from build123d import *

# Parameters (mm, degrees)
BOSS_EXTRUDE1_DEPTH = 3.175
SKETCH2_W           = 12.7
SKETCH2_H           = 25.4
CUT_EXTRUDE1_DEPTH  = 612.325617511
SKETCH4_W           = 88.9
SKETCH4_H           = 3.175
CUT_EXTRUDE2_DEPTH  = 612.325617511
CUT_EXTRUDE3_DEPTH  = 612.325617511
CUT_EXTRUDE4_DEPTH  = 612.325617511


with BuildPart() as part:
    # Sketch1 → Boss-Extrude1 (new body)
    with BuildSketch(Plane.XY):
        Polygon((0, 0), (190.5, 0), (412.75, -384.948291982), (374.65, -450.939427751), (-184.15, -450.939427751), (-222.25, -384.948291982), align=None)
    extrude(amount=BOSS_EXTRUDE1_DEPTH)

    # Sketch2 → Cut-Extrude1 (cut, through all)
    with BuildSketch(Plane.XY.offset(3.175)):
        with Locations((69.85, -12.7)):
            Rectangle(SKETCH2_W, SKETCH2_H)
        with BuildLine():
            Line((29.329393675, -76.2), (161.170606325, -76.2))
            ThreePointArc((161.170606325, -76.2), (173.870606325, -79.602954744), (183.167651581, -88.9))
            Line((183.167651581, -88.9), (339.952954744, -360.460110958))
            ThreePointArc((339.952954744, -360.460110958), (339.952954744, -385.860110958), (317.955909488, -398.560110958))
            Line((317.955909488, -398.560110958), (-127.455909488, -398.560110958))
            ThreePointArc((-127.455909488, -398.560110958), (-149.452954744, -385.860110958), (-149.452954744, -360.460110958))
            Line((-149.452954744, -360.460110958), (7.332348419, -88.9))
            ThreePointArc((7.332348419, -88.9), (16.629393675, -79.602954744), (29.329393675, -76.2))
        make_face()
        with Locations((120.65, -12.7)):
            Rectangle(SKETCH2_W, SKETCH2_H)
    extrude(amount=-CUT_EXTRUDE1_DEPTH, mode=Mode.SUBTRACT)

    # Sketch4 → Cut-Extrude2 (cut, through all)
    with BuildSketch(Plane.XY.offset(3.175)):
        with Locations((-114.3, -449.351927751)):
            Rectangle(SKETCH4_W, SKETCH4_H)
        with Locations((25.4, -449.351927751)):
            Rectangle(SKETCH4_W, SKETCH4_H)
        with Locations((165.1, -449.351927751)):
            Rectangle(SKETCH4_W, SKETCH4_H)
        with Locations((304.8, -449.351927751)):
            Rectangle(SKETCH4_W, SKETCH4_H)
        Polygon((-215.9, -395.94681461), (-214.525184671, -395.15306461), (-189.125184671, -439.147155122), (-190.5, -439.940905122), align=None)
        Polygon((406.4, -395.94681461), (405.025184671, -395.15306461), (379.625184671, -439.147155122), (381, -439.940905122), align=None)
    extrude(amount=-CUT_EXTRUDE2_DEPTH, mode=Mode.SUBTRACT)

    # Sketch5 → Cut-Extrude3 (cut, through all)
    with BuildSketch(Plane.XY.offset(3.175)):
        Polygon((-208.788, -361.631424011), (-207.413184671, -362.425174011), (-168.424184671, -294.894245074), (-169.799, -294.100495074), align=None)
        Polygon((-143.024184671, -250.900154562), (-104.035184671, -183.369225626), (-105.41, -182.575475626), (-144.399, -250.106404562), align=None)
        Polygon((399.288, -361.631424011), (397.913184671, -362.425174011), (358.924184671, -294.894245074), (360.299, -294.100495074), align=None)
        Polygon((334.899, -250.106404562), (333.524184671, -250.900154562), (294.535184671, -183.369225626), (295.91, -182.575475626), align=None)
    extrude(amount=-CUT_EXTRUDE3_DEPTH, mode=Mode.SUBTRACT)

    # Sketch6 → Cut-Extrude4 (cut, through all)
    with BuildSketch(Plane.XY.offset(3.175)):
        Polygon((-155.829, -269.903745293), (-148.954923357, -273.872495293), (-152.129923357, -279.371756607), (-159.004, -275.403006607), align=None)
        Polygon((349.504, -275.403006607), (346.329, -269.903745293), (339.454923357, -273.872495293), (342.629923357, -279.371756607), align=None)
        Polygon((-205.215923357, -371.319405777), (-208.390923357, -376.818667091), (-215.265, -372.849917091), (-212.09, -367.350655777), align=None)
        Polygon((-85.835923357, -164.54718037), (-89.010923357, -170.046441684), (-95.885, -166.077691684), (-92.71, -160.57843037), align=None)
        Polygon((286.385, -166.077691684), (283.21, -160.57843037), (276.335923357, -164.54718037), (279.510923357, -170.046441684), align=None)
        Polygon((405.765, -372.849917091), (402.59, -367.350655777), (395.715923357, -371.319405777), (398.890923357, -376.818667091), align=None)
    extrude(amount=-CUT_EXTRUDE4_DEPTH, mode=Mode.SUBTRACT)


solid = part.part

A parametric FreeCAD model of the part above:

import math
import FreeCAD as App
import Part
import Sketcher
from FreeCAD import Vector
Q = App.Units.Quantity


def add_polygon(sketch, points):
    """Adds a closed chain of lines whose ends are joined by coincident constraints."""
    first, n = sketch.GeometryCount, len(points)
    for a, b in zip(points, points[1:] + points[:1]):
        sketch.addGeometry(Part.LineSegment(App.Vector(*a, 0), App.Vector(*b, 0)), False)
    for i in range(n):
        sketch.addConstraint(Sketcher.Constraint("Coincident", first + i, 2, first + (i + 1) % n, 1))

doc = App.newDocument("Part")
params = doc.addObject("Spreadsheet::Sheet", "Params")
for row, (alias, value) in enumerate([
    ("sketch1_width", "22 in"),
    ("sketch1_length", "3 in"),
    ("sketch1_width2", "7.5 in"),
    ("pad1_length", "0.125 in"),
    ("sketch2_radius", "1 in"),
    ("sketch2_height", "1 in"),
    ("sketch2_width", "0.5 in"),
    ("sketch3_length", "2 in"),
    ("sketch3_width", "3.5 in"),
    ("sketch3_height", "0.125 in"),
    ("sketch3_length2", "0.0625 in"),
    ("sketch4_length", "3.07 in"),
    ("sketch4_length2", "0.0625 in"),
    ("sketch5_length", "0.25 in"),
    ("sketch5_length2", "0.3125 in"),
], start=1):
    params.set(f"A{row}", alias)
    params.set(f"B{row}", "=" + value)
    params.setAlias(f"B{row}", alias)

body = doc.addObject("PartDesign::Body", "Body")

# Sketch on XY plane
sketch1 = body.newObject("Sketcher::SketchObject", "Sketch")
sketch1.AttachmentSupport = (doc.getObject("XY_Plane"), [""])
sketch1.MapMode = "FlatFace"
add_polygon(sketch1, [(190.5, 0), (0, 0), (-222.25, -384.948292), (-184.15, -450.939428), (374.65, -450.939428), (412.75, -384.948292)])  # lines 0-5
sketch1.addConstraint([
    Sketcher.Constraint("Horizontal", 0),
    Sketcher.Constraint("Horizontal", 3),
    Sketcher.Constraint("Coincident", 0, 2, -1, 1),
    Sketcher.Constraint("Parallel", 1, 4),
    Sketcher.Constraint("Parallel", 2, 5),
    Sketcher.Constraint("Horizontal", 1, 2, 4, 2),
    Sketcher.Constraint("Equal", 2, 4),
    Sketcher.Constraint("DistanceX", 3, 1, 3, 2, Q("22 in")),
    Sketcher.Constraint("Distance", 2, Q("3 in")),
    Sketcher.Constraint("DistanceX", 0, 2, 0, 1, Q("7.5 in")),
    Sketcher.Constraint("Angle", 1, Q("-120 deg")),
])
sketch1.setExpression("Constraints[13]", "Params.sketch1_width")
sketch1.setExpression("Constraints[14]", "Params.sketch1_length")
sketch1.setExpression("Constraints[15]", "Params.sketch1_width2")
pad1 = body.newObject("PartDesign::Pad", "Pad")
pad1.Profile = sketch1
pad1.setExpression("Length", "Params.pad1_length")

# Sketch on XY plane
sketch2 = body.newObject("Sketcher::SketchObject", "Sketch001")
sketch2.AttachmentSupport = (doc.getObject("XY_Plane"), [""])
sketch2.MapMode = "FlatFace"
sketch2.AttachmentOffset = App.Placement(Vector(0, 0, 0.125 * 25.4), App.Rotation())
add_polygon(sketch2, [(63.5, 0), (63.5, -25.4), (76.2, -25.4), (76.2, 0)])  # lines 0-3
sketch2.addGeometry(Part.LineSegment(Vector(161.170606, -76.2, 0), Vector(29.329394, -76.2, 0)), False)  # 4
sketch2.addGeometry(Part.ArcOfCircle(Part.Circle(Vector(29.329394, -101.6, 0), Vector(0, 0, 1), 25.4), math.radians(90), math.radians(150)), False)  # 5
sketch2.addGeometry(Part.LineSegment(Vector(7.332348, -88.9, 0), Vector(-149.452955, -360.460111, 0)), False)  # 6
sketch2.addGeometry(Part.ArcOfCircle(Part.Circle(Vector(-127.455909, -373.160111, 0), Vector(0, 0, 1), 25.4), math.radians(150), math.radians(270)), False)  # 7
sketch2.addGeometry(Part.LineSegment(Vector(-127.455909, -398.560111, 0), Vector(317.955909, -398.560111, 0)), False)  # 8
sketch2.addGeometry(Part.ArcOfCircle(Part.Circle(Vector(317.955909, -373.160111, 0), Vector(0, 0, 1), 25.4), math.radians(-90), math.radians(30)), False)  # 9
sketch2.addGeometry(Part.LineSegment(Vector(339.952955, -360.460111, 0), Vector(183.167652, -88.9, 0)), False)  # 10
sketch2.addGeometry(Part.ArcOfCircle(Part.Circle(Vector(161.170606, -101.6, 0), Vector(0, 0, 1), 25.4), math.radians(30), math.radians(90)), False)  # 11
add_polygon(sketch2, [(114.3, 0), (114.3, -25.4), (127, -25.4), (127, 0)])  # lines 12-15
sketch2.addConstraint([
    Sketcher.Constraint("Tangent", 4, 2, 5, 1),
    Sketcher.Constraint("Tangent", 5, 2, 6, 1),
    Sketcher.Constraint("Tangent", 6, 2, 7, 1),
    Sketcher.Constraint("Tangent", 7, 2, 8, 1),
    Sketcher.Constraint("Tangent", 8, 2, 9, 1),
    Sketcher.Constraint("Tangent", 9, 2, 10, 1),
    Sketcher.Constraint("Tangent", 10, 2, 11, 1),
    Sketcher.Constraint("Tangent", 11, 2, 4, 1),
    Sketcher.Constraint("Vertical", 0),
    Sketcher.Constraint("Horizontal", 1),
    Sketcher.Constraint("Vertical", 2),
    Sketcher.Constraint("Horizontal", 3),
    Sketcher.Constraint("Horizontal", 4),
    Sketcher.Constraint("Horizontal", 8),
    Sketcher.Constraint("Vertical", 12),
    Sketcher.Constraint("Horizontal", 13),
    Sketcher.Constraint("Vertical", 14),
    Sketcher.Constraint("Horizontal", 15),
    Sketcher.Constraint("Equal", 5, 7),
    Sketcher.Constraint("Equal", 7, 9),
    Sketcher.Constraint("Equal", 9, 11),
    Sketcher.Constraint("PointOnObject", 2, 2, -1),
    Sketcher.Constraint("PointOnObject", 14, 2, -1),
    Sketcher.Constraint("Horizontal", 6, 2, 9, 2),
    Sketcher.Constraint("Horizontal", 1, 2, 12, 2),
    Sketcher.Constraint("Equal", 3, 13),
    Sketcher.Constraint("Radius", 5, Q("1 in")),
    Sketcher.Constraint("DistanceY", 0, 2, 0, 1, Q("1 in")),
    Sketcher.Constraint("DistanceX", 1, 1, 1, 2, Q("0.5 in")),
    Sketcher.Constraint("DistanceY", 5, 3, -1, 1, Q("4 in")),
    Sketcher.Constraint("DistanceX", -1, 1, 1, 2, Q("3 in")),
    Sketcher.Constraint("DistanceX", -1, 1, 13, 2, Q("5 in")),
    Sketcher.Constraint("Angle", 6, Q("-120 deg")),
    Sketcher.Constraint("DistanceX", 8, 1, 8, 2, Q("445.411819 mm")),
    Sketcher.Constraint("DistanceX", 4, 2, 4, 1, Q("131.841213 mm")),
    Sketcher.Constraint("DistanceX", 7, 3, -1, 1, Q("127.455909 mm")),
])
sketch2.setExpression("Constraints[34]", "Params.sketch2_radius")
sketch2.setExpression("Constraints[35]", "Params.sketch2_height")
sketch2.setExpression("Constraints[36]", "Params.sketch2_width")
pocket1 = body.newObject("PartDesign::Pocket", "Pocket")
pocket1.Profile = sketch2
pocket1.Type = "ThroughAll"

# Sketch on XY plane
sketch3 = body.newObject("Sketcher::SketchObject", "Sketch002")
sketch3.AttachmentSupport = (doc.getObject("XY_Plane"), [""])
sketch3.MapMode = "FlatFace"
sketch3.AttachmentOffset = App.Placement(Vector(0, 0, 0.125 * 25.4), App.Rotation())
add_polygon(sketch3, [(-158.75, -447.764428), (-158.75, -450.939428), (-69.85, -450.939428), (-69.85, -447.764428)])  # lines 0-3
add_polygon(sketch3, [(-19.05, -447.764428), (-19.05, -450.939428), (69.85, -450.939428), (69.85, -447.764428)])  # lines 4-7
add_polygon(sketch3, [(120.65, -447.764428), (120.65, -450.939428), (209.55, -450.939428), (209.55, -447.764428)])  # lines 8-11
add_polygon(sketch3, [(260.35, -447.764428), (260.35, -450.939428), (349.25, -450.939428), (349.25, -447.764428)])  # lines 12-15
add_polygon(sketch3, [(-214.525185, -395.153065), (-215.9, -395.946815), (-190.5, -439.940905), (-189.125185, -439.147155)])  # lines 16-19
add_polygon(sketch3, [(406.4, -395.946815), (405.025185, -395.153065), (379.625185, -439.147155), (381, -439.940905)])  # lines 20-23
sketch3.addConstraint([
    Sketcher.Constraint("Vertical", 0),
    Sketcher.Constraint("Horizontal", 1),
    Sketcher.Constraint("Vertical", 2),
    Sketcher.Constraint("Horizontal", 3),
    Sketcher.Constraint("Vertical", 4),
    Sketcher.Constraint("Horizontal", 5),
    Sketcher.Constraint("Vertical", 6),
    Sketcher.Constraint("Horizontal", 7),
    Sketcher.Constraint("Vertical", 8),
    Sketcher.Constraint("Horizontal", 9),
    Sketcher.Constraint("Vertical", 10),
    Sketcher.Constraint("Horizontal", 11),
    Sketcher.Constraint("Vertical", 12),
    Sketcher.Constraint("Horizontal", 13),
    Sketcher.Constraint("Vertical", 14),
    Sketcher.Constraint("Horizontal", 15),
    Sketcher.Constraint("Symmetric", 1, 2, 5, 2, -2),
    Sketcher.Constraint("Perpendicular", 16, 17),
    Sketcher.Constraint("Perpendicular", 17, 18),
    Sketcher.Constraint("Perpendicular", 18, 19),
    Sketcher.Constraint("Perpendicular", 20, 21),
    Sketcher.Constraint("Perpendicular", 21, 22),
    Sketcher.Constraint("Perpendicular", 22, 23),
    Sketcher.Constraint("Horizontal", 3, 2, 6, 2),
    Sketcher.Constraint("Horizontal", 5, 2, 8, 2),
    Sketcher.Constraint("Horizontal", 7, 2, 10, 2),
    Sketcher.Constraint("Horizontal", 9, 2, 12, 2),
    Sketcher.Constraint("Horizontal", 11, 2, 14, 2),
    Sketcher.Constraint("Horizontal", 19, 2, 20, 2),
    Sketcher.Constraint("Horizontal", 18, 2, 21, 2),
    Sketcher.Constraint("Horizontal", 17, 2, 22, 2),
    Sketcher.Constraint("Equal", 3, 5),
    Sketcher.Constraint("Equal", 7, 9),
    Sketcher.Constraint("Equal", 11, 13),
    Sketcher.Constraint("Equal", 18, 20),
    Sketcher.Constraint("Distance", 17, Q("2 in")),
    Sketcher.Constraint("DistanceX", 1, 1, 1, 2, Q("3.5 in")),
    Sketcher.Constraint("DistanceX", -1, 1, 22, 2, Q("15 in")),
    Sketcher.Constraint("DistanceX", -1, 1, 23, 2, Q("16 in")),
    Sketcher.Constraint("DistanceX", 1, 2, 4, 2, Q("2 in")),
    Sketcher.Constraint("DistanceX", 5, 2, 8, 2, Q("2 in")),
    Sketcher.Constraint("DistanceX", 9, 2, 12, 2, Q("2 in")),
    Sketcher.Constraint("DistanceX", 16, 2, -1, 1, Q("8.5 in")),
    Sketcher.Constraint("DistanceY", 0, 2, 0, 1, Q("0.125 in")),
    Sketcher.Constraint("Distance", 16, Q("0.0625 in")),
    Sketcher.Constraint("DistanceY", 0, 2, -1, 1, Q("450.939428 mm")),
    Sketcher.Constraint("DistanceY", 16, 2, -1, 1, Q("395.946815 mm")),
])
sketch3.setExpression("Constraints[59]", "Params.sketch3_length")
sketch3.setExpression("Constraints[60]", "Params.sketch3_width")
sketch3.setExpression("Constraints[67]", "Params.sketch3_height")
sketch3.setExpression("Constraints[68]", "Params.sketch3_length2")
pocket2 = body.newObject("PartDesign::Pocket", "Pocket001")
pocket2.Profile = sketch3
pocket2.Type = "ThroughAll"

# Sketch on XY plane
sketch4 = body.newObject("Sketcher::SketchObject", "Sketch003")
sketch4.AttachmentSupport = (doc.getObject("XY_Plane"), [""])
sketch4.MapMode = "FlatFace"
sketch4.AttachmentOffset = App.Placement(Vector(0, 0, 0.125 * 25.4), App.Rotation())
add_polygon(sketch4, [(-208.788, -361.631424), (-207.413185, -362.425174), (-168.424185, -294.894245), (-169.799, -294.100495)])  # lines 0-3
add_polygon(sketch4, [(-143.024185, -250.900155), (-104.035185, -183.369226), (-105.41, -182.575476), (-144.399, -250.106405)])  # lines 4-7
add_polygon(sketch4, [(397.913185, -362.425174), (399.288, -361.631424), (360.299, -294.100495), (358.924185, -294.894245)])  # lines 8-11
add_polygon(sketch4, [(333.524185, -250.900155), (334.899, -250.106405), (295.91, -182.575476), (294.535185, -183.369226)])  # lines 12-15
sketch4.addConstraint([
    Sketcher.Constraint("Perpendicular", 0, 1),
    Sketcher.Constraint("Perpendicular", 1, 2),
    Sketcher.Constraint("Perpendicular", 2, 3),
    Sketcher.Constraint("Parallel", 3, 4),
    Sketcher.Constraint("Perpendicular", 4, 5),
    Sketcher.Constraint("Perpendicular", 5, 6),
    Sketcher.Constraint("Perpendicular", 6, 7),
    Sketcher.Constraint("Perpendicular", 8, 9),
    Sketcher.Constraint("Perpendicular", 9, 10),
    Sketcher.Constraint("Perpendicular", 10, 11),
    Sketcher.Constraint("Perpendicular", 11, 12),
    Sketcher.Constraint("Perpendicular", 12, 13),
    Sketcher.Constraint("Perpendicular", 13, 14),
    Sketcher.Constraint("Perpendicular", 14, 15),
    Sketcher.Constraint("Horizontal", 3, 2, 8, 2),
    Sketcher.Constraint("Horizontal", 2, 2, 9, 2),
    Sketcher.Constraint("Horizontal", 1, 2, 10, 2),
    Sketcher.Constraint("Horizontal", 6, 2, 12, 2),
    Sketcher.Constraint("Horizontal", 5, 2, 13, 2),
    Sketcher.Constraint("Horizontal", 4, 2, 14, 2),
    Sketcher.Constraint("Equal", 3, 4),
    Sketcher.Constraint("Equal", 2, 5),
    Sketcher.Constraint("Equal", 7, 8),
    Sketcher.Constraint("Angle", 0, Q("-30 deg")),
    Sketcher.Constraint("DistanceX", 2, 2, 6, 2, Q("1 in")),
    Sketcher.Constraint("DistanceX", 12, 2, 9, 2, Q("1 in")),
    Sketcher.Constraint("Distance", 1, Q("3.07 in")),
    Sketcher.Constraint("DistanceX", 3, 2, -1, 1, Q("8.22 in")),
    Sketcher.Constraint("DistanceX", -1, 1, 8, 2, Q("15.72 in")),
    Sketcher.Constraint("Distance", 0, Q("0.0625 in")),
    Sketcher.Constraint("DistanceY", 3, 2, 4, 2, Q("178.262198 mm")),
    Sketcher.Constraint("DistanceY", 0, 2, -1, 1, Q("362.425174 mm")),
])
sketch4.setExpression("Constraints[42]", "Params.sketch4_length")
sketch4.setExpression("Constraints[45]", "Params.sketch4_length2")
pocket3 = body.newObject("PartDesign::Pocket", "Pocket002")
pocket3.Profile = sketch4
pocket3.Type = "ThroughAll"

# Sketch on XY plane
sketch5 = body.newObject("Sketcher::SketchObject", "Sketch004")
sketch5.AttachmentSupport = (doc.getObject("XY_Plane"), [""])
sketch5.MapMode = "FlatFace"
sketch5.AttachmentOffset = App.Placement(Vector(0, 0, 0.125 * 25.4), App.Rotation())
add_polygon(sketch5, [(-148.954923, -273.872495), (-155.829, -269.903745), (-159.004, -275.403007), (-152.129923, -279.371757)])  # lines 0-3
add_polygon(sketch5, [(349.504, -275.403007), (346.329, -269.903745), (339.454923, -273.872495), (342.629923, -279.371757)])  # lines 4-7
add_polygon(sketch5, [(-208.390923, -376.818667), (-205.215923, -371.319406), (-212.09, -367.350656), (-215.265, -372.849917)])  # lines 8-11
add_polygon(sketch5, [(-89.010923, -170.046442), (-85.835923, -164.54718), (-92.71, -160.57843), (-95.885, -166.077692)])  # lines 12-15
add_polygon(sketch5, [(286.385, -166.077692), (283.21, -160.57843), (276.335923, -164.54718), (279.510923, -170.046442)])  # lines 16-19
add_polygon(sketch5, [(405.765, -372.849917), (402.59, -367.350656), (395.715923, -371.319406), (398.890923, -376.818667)])  # lines 20-23
sketch5.addConstraint([
    Sketcher.Constraint("Perpendicular", 0, 1),
    Sketcher.Constraint("Perpendicular", 1, 2),
    Sketcher.Constraint("Perpendicular", 2, 3),
    Sketcher.Constraint("Perpendicular", 4, 5),
    Sketcher.Constraint("Perpendicular", 5, 6),
    Sketcher.Constraint("Perpendicular", 6, 7),
    Sketcher.Constraint("Parallel", 3, 8),
    Sketcher.Constraint("Perpendicular", 8, 9),
    Sketcher.Constraint("Perpendicular", 9, 10),
    Sketcher.Constraint("Perpendicular", 10, 11),
    Sketcher.Constraint("Perpendicular", 11, 12),
    Sketcher.Constraint("Perpendicular", 12, 13),
    Sketcher.Constraint("Perpendicular", 13, 14),
    Sketcher.Constraint("Perpendicular", 14, 15),
    Sketcher.Constraint("Perpendicular", 7, 16),
    Sketcher.Constraint("Perpendicular", 16, 17),
    Sketcher.Constraint("Perpendicular", 17, 18),
    Sketcher.Constraint("Perpendicular", 18, 19),
    Sketcher.Constraint("Perpendicular", 19, 20),
    Sketcher.Constraint("Perpendicular", 20, 21),
    Sketcher.Constraint("Perpendicular", 21, 22),
    Sketcher.Constraint("Perpendicular", 22, 23),
    Sketcher.Constraint("Horizontal", 0, 2, 4, 2),
    Sketcher.Constraint("Horizontal", 3, 2, 5, 2),
    Sketcher.Constraint("Horizontal", 2, 2, 6, 2),
    Sketcher.Constraint("Horizontal", 13, 2, 16, 2),
    Sketcher.Constraint("Horizontal", 12, 2, 17, 2),
    Sketcher.Constraint("Horizontal", 15, 2, 18, 2),
    Sketcher.Constraint("Horizontal", 9, 2, 20, 2),
    Sketcher.Constraint("Horizontal", 8, 2, 21, 2),
    Sketcher.Constraint("Horizontal", 11, 2, 22, 2),
    Sketcher.Constraint("Equal", 3, 4),
    Sketcher.Constraint("Equal", 6, 8),
    Sketcher.Constraint("Equal", 7, 9),
    Sketcher.Constraint("Equal", 10, 12),
    Sketcher.Constraint("Equal", 11, 13),
    Sketcher.Constraint("Angle", 0, Q("150 deg")),
    Sketcher.Constraint("DistanceX", 8, 2, 12, 2, Q("4.7 in")),
    Sketcher.Constraint("Distance", 1, Q("0.25 in")),
    Sketcher.Constraint("DistanceX", 1, 2, -1, 1, Q("6.26 in")),
    Sketcher.Constraint("DistanceX", -1, 1, 7, 2, Q("13.76 in")),
    Sketcher.Constraint("DistanceX", 9, 2, -1, 1, Q("8.35 in")),
    Sketcher.Constraint("DistanceX", -1, 1, 16, 2, Q("11.15 in")),
    Sketcher.Constraint("DistanceX", -1, 1, 20, 2, Q("15.85 in")),
    Sketcher.Constraint("Distance", 0, Q("0.3125 in")),
    Sketcher.Constraint("DistanceY", 8, 2, 1, 2, Q("95.916399 mm")),
    Sketcher.Constraint("DistanceY", 12, 2, -1, 1, Q("164.54718 mm")),
    Sketcher.Constraint("DistanceY", 0, 2, -1, 1, Q("269.903745 mm")),
])
sketch5.setExpression("Constraints[62]", "Params.sketch5_length")
sketch5.setExpression("Constraints[68]", "Params.sketch5_length2")
pocket4 = body.newObject("PartDesign::Pocket", "Pocket003")
pocket4.Profile = sketch5
pocket4.Type = "ThroughAll"

doc.recompute()
